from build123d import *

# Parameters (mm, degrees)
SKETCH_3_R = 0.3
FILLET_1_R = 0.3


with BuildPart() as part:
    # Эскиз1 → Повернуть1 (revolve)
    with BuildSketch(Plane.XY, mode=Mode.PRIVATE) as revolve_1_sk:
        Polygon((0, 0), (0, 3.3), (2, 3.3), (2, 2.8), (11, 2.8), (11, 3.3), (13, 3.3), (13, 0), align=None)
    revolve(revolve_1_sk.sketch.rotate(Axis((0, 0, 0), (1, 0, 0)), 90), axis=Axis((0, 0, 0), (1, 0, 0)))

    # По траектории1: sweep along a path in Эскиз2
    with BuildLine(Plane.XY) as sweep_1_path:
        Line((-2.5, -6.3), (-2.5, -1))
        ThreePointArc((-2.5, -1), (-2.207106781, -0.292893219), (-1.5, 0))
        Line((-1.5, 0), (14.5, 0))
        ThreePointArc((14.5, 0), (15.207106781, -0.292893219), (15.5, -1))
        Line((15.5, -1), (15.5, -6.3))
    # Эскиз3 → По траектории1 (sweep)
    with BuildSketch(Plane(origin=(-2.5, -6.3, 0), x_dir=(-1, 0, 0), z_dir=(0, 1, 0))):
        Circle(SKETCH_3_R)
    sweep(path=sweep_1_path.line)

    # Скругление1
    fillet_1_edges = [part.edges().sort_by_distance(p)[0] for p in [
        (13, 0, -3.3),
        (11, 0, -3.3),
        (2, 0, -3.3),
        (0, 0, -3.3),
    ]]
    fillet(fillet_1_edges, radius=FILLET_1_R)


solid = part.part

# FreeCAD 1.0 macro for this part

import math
import FreeCAD as App
import Part
import Sketcher


def edges_at(feature, points):
    """Names of the edges that pass closest to the given points."""
    edges = feature.Shape.Edges
    near = lambda p: min(range(len(edges)), key=lambda i: edges[i].distToShape(Part.Vertex(*p))[0])
    return sorted({f"Edge{near(p) + 1}" for p in points})


def add_polygon(sketch, points):
    """Adds a closed chain of lines whose ends are joined by coincident constraints."""
    first, n = sketch.GeometryCount, len(points)
    for a, b in zip(points, points[1:] + points[:1]):
        sketch.addGeometry(Part.LineSegment(App.Vector(*a, 0), App.Vector(*b, 0)), False)
    for i in range(n):
        sketch.addConstraint(Sketcher.Constraint("Coincident", first + i, 2, first + (i + 1) % n, 1))

doc = App.newDocument("Part")
body = doc.addObject("PartDesign::Body", "Body")

sketch1 = body.newObject("Sketcher::SketchObject", "Sketch")
sketch1.AttachmentSupport = (doc.getObject("XY_Plane"), [""])
sketch1.MapMode = "FlatFace"
add_polygon(sketch1, [(0, 3.3), (0, 0), (13, 0), (13, 3.3), (11, 3.3), (11, 2.8), (2, 2.8), (2, 3.3)])
sketch1.addConstraint([
    Sketcher.Constraint("Vertical", 0),
    Sketcher.Constraint("Horizontal", 1),
    Sketcher.Constraint("Vertical", 2),
    Sketcher.Constraint("Horizontal", 3),
    Sketcher.Constraint("Vertical", 4),
    Sketcher.Constraint("Horizontal", 5),
    Sketcher.Constraint("Vertical", 6),
    Sketcher.Constraint("Horizontal", 7),
    Sketcher.Constraint("Coincident", 0, 2, -1, 1),
    Sketcher.Constraint("Horizontal", 3, 2, 6, 2),
    Sketcher.Constraint("Equal", 3, 7),
    Sketcher.Constraint("DistanceX", 1, 1, 1, 2, 13.0),
    Sketcher.Constraint("DistanceX", 3, 2, 3, 1, 2.0),
    Sketcher.Constraint("DistanceY", 0, 2, 0, 1, 3.3),
    Sketcher.Constraint("DistanceY", 4, 2, 4, 1, 0.5),
])
revolution = body.newObject("PartDesign::Revolution", "Revolution")
revolution.Profile = sketch1
revolution.ReferenceAxis = (sketch1, ["H_Axis"])
revolution.Angle = 360

sketch2 = body.newObject("Sketcher::SketchObject", "Sketch001")
sketch2.AttachmentSupport = (doc.getObject("XZ_Plane"), [""])
sketch2.MapMode = "FlatFace"
sketch2.AttachmentOffset = App.Placement(App.Vector(0, 0, 6.3), App.Rotation())
sketch2.addGeometry(Part.Circle(App.Vector(-2.5, 0, 0), App.Vector(0, 0, 1), 0.3), False)
sketch2.addConstraint([
    Sketcher.Constraint("PointOnObject", 0, 3, -1),
    Sketcher.Constraint("Diameter", 0, 0.6),
    Sketcher.Constraint("DistanceX", 0, 3, -1, 1, 2.5),
])

sketch3 = body.newObject("Sketcher::SketchObject", "Sketch002")
sketch3.AttachmentSupport = (doc.getObject("XY_Plane"), [""])
sketch3.MapMode = "FlatFace"
sketch3.addGeometry([
    Part.LineSegment(App.Vector(-2.5, -6.3, 0), App.Vector(-2.5, -1, 0)),
    Part.ArcOfCircle(Part.Circle(App.Vector(-1.5, -1, 0), App.Vector(0, 0, 1), 1), math.radians(90), math.radians(180)),
    Part.LineSegment(App.Vector(-1.5, 0, 0), App.Vector(14.5, 0, 0)),
    Part.ArcOfCircle(Part.Circle(App.Vector(14.5, -1, 0), App.Vector(0, 0, 1), 1), math.radians(0), math.radians(90)),
    Part.LineSegment(App.Vector(15.5, -1, 0), App.Vector(15.5, -6.3, 0)),
], False)
sketch3.addConstraint([
    Sketcher.Constraint("Tangent", 0, 2, 1, 2),
    Sketcher.Constraint("Tangent", 1, 1, 2, 1),
    Sketcher.Constraint("Tangent", 2, 2, 3, 2),
    Sketcher.Constraint("Tangent", 3, 1, 4, 1),
    Sketcher.Constraint("Vertical", 0),
    Sketcher.Constraint("Horizontal", 2),
    Sketcher.Constraint("Vertical", 4),
    Sketcher.Constraint("Equal", 1, 3),
    Sketcher.Constraint("PointOnObject", 1, 1, -1),
    Sketcher.Constraint("Horizontal", 0, 1, 4, 2),
    Sketcher.Constraint("Radius", 1, 1.0),
    Sketcher.Constraint("DistanceX", 2, 1, 2, 2, 16.0),
    Sketcher.Constraint("DistanceY", 0, 1, 0, 2, 5.3),
    Sketcher.Constraint("DistanceX", 1, 3, -1, 1, 1.5),
])
doc.recompute()

additivepipe = body.newObject("PartDesign::AdditivePipe", "AdditivePipe")
additivepipe.Profile = sketch2
additivepipe.Spine = (sketch3, ["Edge1", "Edge2", "Edge3", "Edge4", "Edge5"])
doc.recompute()

fillet = body.newObject("PartDesign::Fillet", "Fillet")
fillet.Base = (additivepipe, edges_at(additivepipe, [
    (13, 0, -3.3),
    (11, 0, -3.3),
    (2, 0, -3.3),
    (0, 0, -3.3),
]))
fillet.Radius = 0.3

doc.recompute()
